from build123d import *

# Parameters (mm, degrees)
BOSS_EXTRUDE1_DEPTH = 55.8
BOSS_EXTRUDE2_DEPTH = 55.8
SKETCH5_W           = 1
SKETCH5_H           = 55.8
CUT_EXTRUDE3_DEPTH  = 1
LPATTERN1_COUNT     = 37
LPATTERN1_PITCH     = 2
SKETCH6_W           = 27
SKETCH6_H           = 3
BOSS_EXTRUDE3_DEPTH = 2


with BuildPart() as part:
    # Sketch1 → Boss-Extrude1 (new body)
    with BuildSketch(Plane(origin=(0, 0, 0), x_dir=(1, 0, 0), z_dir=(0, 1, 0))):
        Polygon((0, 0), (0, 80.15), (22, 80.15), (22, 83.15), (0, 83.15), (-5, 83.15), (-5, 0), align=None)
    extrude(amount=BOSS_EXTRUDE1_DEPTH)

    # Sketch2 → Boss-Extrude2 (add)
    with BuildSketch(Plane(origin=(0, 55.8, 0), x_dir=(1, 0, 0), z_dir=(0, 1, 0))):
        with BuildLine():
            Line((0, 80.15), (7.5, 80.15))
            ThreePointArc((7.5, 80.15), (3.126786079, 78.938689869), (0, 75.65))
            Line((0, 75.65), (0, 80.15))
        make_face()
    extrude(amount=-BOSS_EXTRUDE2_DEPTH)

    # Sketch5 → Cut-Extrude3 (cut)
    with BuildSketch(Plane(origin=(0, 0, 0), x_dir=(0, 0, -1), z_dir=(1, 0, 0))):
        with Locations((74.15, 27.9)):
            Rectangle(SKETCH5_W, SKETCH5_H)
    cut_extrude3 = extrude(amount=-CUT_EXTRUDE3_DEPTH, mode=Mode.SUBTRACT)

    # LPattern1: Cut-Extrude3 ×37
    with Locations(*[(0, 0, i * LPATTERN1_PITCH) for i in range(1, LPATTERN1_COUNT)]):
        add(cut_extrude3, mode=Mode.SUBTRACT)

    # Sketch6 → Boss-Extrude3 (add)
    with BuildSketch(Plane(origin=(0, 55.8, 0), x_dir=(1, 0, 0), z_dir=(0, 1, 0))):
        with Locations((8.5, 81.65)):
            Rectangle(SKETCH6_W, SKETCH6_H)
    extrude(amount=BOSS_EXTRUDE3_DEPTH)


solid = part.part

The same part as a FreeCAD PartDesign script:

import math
import FreeCAD as App
import Part
import Sketcher

V = App.Vector
Q = App.Units.Quantity


def add_polygon(sketch, points):
    """Adds a closed chain of lines whose ends are joined by coincident constraints."""
    first, n = sketch.GeometryCount, len(points)
    for a, b in zip(points, points[1:] + points[:1]):
        sketch.addGeometry(Part.LineSegment(App.Vector(*a, 0), App.Vector(*b, 0)), False)
    for i in range(n):
        sketch.addConstraint(Sketcher.Constraint("Coincident", first + i, 2, first + (i + 1) % n, 1))

doc = App.newDocument("Part")
body = doc.addObject("PartDesign::Body", "Body")

sketch1 = body.newObject("Sketcher::SketchObject", "Sketch")
sketch1.AttachmentSupport = (doc.getObject("XZ_Plane"), [""])
sketch1.MapMode = "FlatFace"
add_polygon(sketch1, [(0, 0), (0, -80.15), (22, -80.15), (22, -83.15), (-5, -83.15), (-5, 0)])
sketch1.addConstraint([
    Sketcher.Constraint("Vertical", 0),
    Sketcher.Constraint("Horizontal", 1),
    Sketcher.Constraint("Vertical", 2),
    Sketcher.Constraint("Horizontal", 3),
    Sketcher.Constraint("Vertical", 4),
    Sketcher.Constraint("Horizontal", 5),
    Sketcher.Constraint("Coincident", 5, 2, -1, 1),
    Sketcher.Constraint("DistanceX", 1, 1, 1, 2, Q("22 mm")),
    Sketcher.Constraint("DistanceX", 3, 2, 3, 1, Q("27 mm")),
    Sketcher.Constraint("DistanceY", 2, 2, 2, 1, Q("3 mm")),
    Sketcher.Constraint("DistanceY", 0, 2, 0, 1, Q("80.15 mm")),
])
pad1 = body.newObject("PartDesign::Pad", "Pad")
pad1.Profile = sketch1
pad1.Length = 55.8
pad1.Reversed = True

sketch2 = body.newObject("Sketcher::SketchObject", "Sketch001")
sketch2.AttachmentSupport = (doc.getObject("XZ_Plane"), [""])
sketch2.MapMode = "FlatFace"
sketch2.AttachmentOffset = App.Placement(V(0, 0, -55.8), App.Rotation())
sketch2.addGeometry([
    Part.LineSegment(V(7.5, -80.15, 0), V(0, -80.15, 0)),
    Part.LineSegment(V(0, -80.15, 0), V(0, -75.65, 0)),
    Part.ArcOfCircle(Part.Circle(V(7.5, -71.65, 0), V(0, 0, 1), 8.5), math.radians(-151.927513), math.radians(-90)),
], False)
sketch2.addConstraint([
    Sketcher.Constraint("Coincident", 0, 2, 1, 1),
    Sketcher.Constraint("Coincident", 1, 2, 2, 1),
    Sketcher.Constraint("Tangent", 2, 2, 0, 1),
    Sketcher.Constraint("Horizontal", 0),
    Sketcher.Constraint("Vertical", 1),
    Sketcher.Constraint("PointOnObject", 0, 2, -2),
    Sketcher.Constraint("Radius", 2, Q("8.5 mm")),
    Sketcher.Constraint("DistanceX", 0, 2, 0, 1, Q("7.5 mm")),
    Sketcher.Constraint("DistanceY", 2, 3, -1, 1, Q("71.65 mm")),
])
pad2 = body.newObject("PartDesign::Pad", "Pad001")
pad2.Profile = sketch2
pad2.Length = 55.8

sketch3 = body.newObject("Sketcher::SketchObject", "Sketch002")
sketch3.AttachmentSupport = (doc.getObject("YZ_Plane"), [""])
sketch3.MapMode = "FlatFace"
add_polygon(sketch3, [(55.8, -73.65), (0, -73.65), (0, -74.65), (55.8, -74.65)])
sketch3.addConstraint([
    Sketcher.Constraint("Horizontal", 0),
    Sketcher.Constraint("Vertical", 1),
    Sketcher.Constraint("Horizontal", 2),
    Sketcher.Constraint("Vertical", 3),
    Sketcher.Constraint("PointOnObject", 0, 2, -2),
    Sketcher.Constraint("DistanceY", 1, 2, 1, 1, Q("1 mm")),
    Sketcher.Constraint("DistanceX", 0, 2, 0, 1, Q("55.8 mm")),
    Sketcher.Constraint("DistanceY", 0, 2, -1, 1, Q("73.65 mm")),
])
pocket1 = body.newObject("PartDesign::Pocket", "Pocket")
pocket1.Profile = sketch3
pocket1.Length = 1
doc.recompute()

linearpattern = body.newObject("PartDesign::LinearPattern", "LinearPattern")
linearpattern.Originals = [pocket1]
linearpattern.Direction = (doc.getObject("Z_Axis"), [""])
linearpattern.Mode = "offset"
linearpattern.Offset = 2
linearpattern.Occurrences = 37
body.Tip = linearpattern

sketch4 = body.newObject("Sketcher::SketchObject", "Sketch003")
sketch4.AttachmentSupport = (doc.getObject("XZ_Plane"), [""])
sketch4.MapMode = "FlatFace"
sketch4.AttachmentOffset = App.Placement(V(0, 0, -55.8), App.Rotation())
add_polygon(sketch4, [(-5, -83.15), (-5, -80.15), (22, -80.15), (22, -83.15)])
sketch4.addConstraint([
    Sketcher.Constraint("Vertical", 0),
    Sketcher.Constraint("Horizontal", 1),
    Sketcher.Constraint("Vertical", 2),
    Sketcher.Constraint("Horizontal", 3),
    Sketcher.Constraint("DistanceX", 1, 1, 1, 2, Q("27 mm")),
    Sketcher.Constraint("DistanceY", 0, 1, 0, 2, Q("3 mm")),
    Sketcher.Constraint("DistanceX", 0, 2, -1, 1, Q("5 mm")),
    Sketcher.Constraint("DistanceY", 0, 2, -1, 1, Q("80.15 mm")),
])
pad3 = body.newObject("PartDesign::Pad", "Pad002")
pad3.Profile = sketch4
pad3.Length = 2
pad3.Reversed = True

doc.recompute()
